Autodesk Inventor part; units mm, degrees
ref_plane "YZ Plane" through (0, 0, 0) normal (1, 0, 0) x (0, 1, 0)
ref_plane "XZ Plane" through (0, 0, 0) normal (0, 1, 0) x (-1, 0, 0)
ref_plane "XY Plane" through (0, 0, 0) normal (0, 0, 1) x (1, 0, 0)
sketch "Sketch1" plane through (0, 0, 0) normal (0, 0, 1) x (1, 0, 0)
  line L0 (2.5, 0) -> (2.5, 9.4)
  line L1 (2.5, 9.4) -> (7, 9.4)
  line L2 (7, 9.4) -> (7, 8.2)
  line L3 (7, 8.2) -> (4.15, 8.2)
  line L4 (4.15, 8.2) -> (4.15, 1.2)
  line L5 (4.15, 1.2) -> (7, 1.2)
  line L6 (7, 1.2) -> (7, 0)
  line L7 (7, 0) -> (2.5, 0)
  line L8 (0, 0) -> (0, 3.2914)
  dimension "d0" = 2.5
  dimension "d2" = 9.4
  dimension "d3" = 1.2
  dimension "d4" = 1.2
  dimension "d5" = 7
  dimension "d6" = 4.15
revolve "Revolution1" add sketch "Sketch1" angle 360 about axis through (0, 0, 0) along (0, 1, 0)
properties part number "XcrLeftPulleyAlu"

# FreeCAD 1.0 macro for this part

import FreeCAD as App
import Part
import Sketcher
from FreeCAD import Vector
Q = App.Units.Quantity


def add_polygon(sketch, points):
    """Adds a closed chain of lines whose ends are joined by coincident constraints."""
    first, n = sketch.GeometryCount, len(points)
    for a, b in zip(points, points[1:] + points[:1]):
        sketch.addGeometry(Part.LineSegment(App.Vector(*a, 0), App.Vector(*b, 0)), False)
    for i in range(n):
        sketch.addConstraint(Sketcher.Constraint("Coincident", first + i, 2, first + (i + 1) % n, 1))

doc = App.newDocument("Part")
body = doc.addObject("PartDesign::Body", "Body")

# Sketch on XY plane
sketch1 = body.newObject("Sketcher::SketchObject", "Sketch")
sketch1.AttachmentSupport = (doc.getObject("XY_Plane"), [""])
sketch1.MapMode = "FlatFace"
add_polygon(sketch1, [(2.5, 9.4), (2.5, 0), (7, 0), (7, 1.2), (4.15, 1.2), (4.15, 8.2), (7, 8.2), (7, 9.4)])  # lines 0-7
sketch1.addConstraint(Sketcher.Constraint("Vertical", 0))
sketch1.addConstraint(Sketcher.Constraint("Horizontal", 1))
sketch1.addConstraint(Sketcher.Constraint("Vertical", 2))
sketch1.addConstraint(Sketcher.Constraint("Horizontal", 3))
sketch1.addConstraint(Sketcher.Constraint("Vertical", 4))
sketch1.addConstraint(Sketcher.Constraint("Horizontal", 5))
sketch1.addConstraint(Sketcher.Constraint("Vertical", 6))
sketch1.addConstraint(Sketcher.Constraint("Horizontal", 7))
sketch1.addConstraint(Sketcher.Constraint("PointOnObject", 0, 2, -1))
sketch1.addConstraint(Sketcher.Constraint("Vertical", 2, 2, 5, 2))
sketch1.addConstraint(Sketcher.Constraint("Equal", 2, 6))
sketch1.addConstraint(Sketcher.Constraint("DistanceY", 4, 1, 4, 2, Q("7 mm")))
sketch1.addConstraint(Sketcher.Constraint("DistanceY", 0, 2, 0, 1, Q("9.4 mm")))
sketch1.addConstraint(Sketcher.Constraint("DistanceX", -1, 1, 1, 2, Q("7 mm")))
sketch1.addConstraint(Sketcher.Constraint("DistanceX", -1, 1, 0, 2, Q("2.5 mm")))
sketch1.addConstraint(Sketcher.Constraint("DistanceX", -1, 1, 3, 2, Q("4.15 mm")))
revolution = body.newObject("PartDesign::Revolution", "Revolution")
revolution.Profile = sketch1
revolution.ReferenceAxis = (sketch1, ["V_Axis"])
revolution.Angle = 360

doc.recompute()
